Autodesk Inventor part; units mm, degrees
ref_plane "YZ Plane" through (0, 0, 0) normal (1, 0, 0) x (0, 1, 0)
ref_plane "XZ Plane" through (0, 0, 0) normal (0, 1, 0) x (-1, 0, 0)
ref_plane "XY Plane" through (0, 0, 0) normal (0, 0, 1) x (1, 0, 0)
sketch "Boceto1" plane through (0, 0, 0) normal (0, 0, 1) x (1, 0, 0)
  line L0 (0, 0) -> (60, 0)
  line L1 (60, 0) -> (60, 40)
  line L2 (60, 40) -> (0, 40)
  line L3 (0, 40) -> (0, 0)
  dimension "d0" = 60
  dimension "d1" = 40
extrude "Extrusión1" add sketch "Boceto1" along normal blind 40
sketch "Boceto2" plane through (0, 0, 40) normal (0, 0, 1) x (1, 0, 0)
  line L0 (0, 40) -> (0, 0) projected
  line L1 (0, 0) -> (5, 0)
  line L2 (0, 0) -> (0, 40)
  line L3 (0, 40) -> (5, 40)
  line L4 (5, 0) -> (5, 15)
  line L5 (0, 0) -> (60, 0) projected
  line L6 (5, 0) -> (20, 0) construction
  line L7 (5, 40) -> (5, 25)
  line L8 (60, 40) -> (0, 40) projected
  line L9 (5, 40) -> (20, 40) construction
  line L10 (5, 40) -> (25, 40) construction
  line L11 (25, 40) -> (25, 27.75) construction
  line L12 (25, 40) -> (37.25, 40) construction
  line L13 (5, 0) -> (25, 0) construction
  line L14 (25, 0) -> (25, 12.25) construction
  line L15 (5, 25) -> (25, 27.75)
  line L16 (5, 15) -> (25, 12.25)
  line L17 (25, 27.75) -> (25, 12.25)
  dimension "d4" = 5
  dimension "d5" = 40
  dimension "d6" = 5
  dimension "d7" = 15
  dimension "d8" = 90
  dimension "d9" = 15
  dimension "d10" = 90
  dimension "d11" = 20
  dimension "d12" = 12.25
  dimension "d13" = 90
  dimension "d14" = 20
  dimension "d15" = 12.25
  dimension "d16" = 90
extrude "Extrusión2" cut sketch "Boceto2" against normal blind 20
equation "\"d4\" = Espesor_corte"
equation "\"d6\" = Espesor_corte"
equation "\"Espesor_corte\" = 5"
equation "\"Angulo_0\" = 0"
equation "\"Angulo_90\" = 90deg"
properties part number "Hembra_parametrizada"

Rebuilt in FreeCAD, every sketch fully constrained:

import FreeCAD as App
import Part
import Sketcher
Q = App.Units.Quantity


def add_polygon(sketch, points):
    """Adds a closed chain of lines whose ends are joined by coincident constraints."""
    first, n = sketch.GeometryCount, len(points)
    for a, b in zip(points, points[1:] + points[:1]):
        sketch.addGeometry(Part.LineSegment(App.Vector(*a, 0), App.Vector(*b, 0)), False)
    for i in range(n):
        sketch.addConstraint(Sketcher.Constraint("Coincident", first + i, 2, first + (i + 1) % n, 1))

doc = App.newDocument("Part")
params = doc.addObject("Spreadsheet::Sheet", "Params")
for row, (alias, value) in enumerate([
    ("sketch1_width", "60 mm"),
    ("sketch1_height", "40 mm"),
    ("pad1_length", "40 mm"),
    ("sketch2_width", "5 mm"),
    ("sketch2_height", "40 mm"),
    ("sketch2_height2", "15 mm"),
    ("pocket1_length", "20 mm"),
], start=1):
    params.set(f"A{row}", alias)
    params.set(f"B{row}", "=" + value)
    params.setAlias(f"B{row}", alias)

body = doc.addObject("PartDesign::Body", "Body")

# Sketch on XY plane
sketch1 = body.newObject("Sketcher::SketchObject", "Sketch")
sketch1.AttachmentSupport = (doc.getObject("XY_Plane"), [""])
sketch1.MapMode = "FlatFace"
add_polygon(sketch1, [(0, 40), (0, 0), (60, 0), (60, 40)])  # lines 0-3
sketch1.addConstraint([
    Sketcher.Constraint("Vertical", 0),
    Sketcher.Constraint("Horizontal", 1),
    Sketcher.Constraint("Vertical", 2),
    Sketcher.Constraint("Horizontal", 3),
    Sketcher.Constraint("Coincident", 0, 2, -1, 1),
    Sketcher.Constraint("DistanceX", 1, 1, 1, 2, Q("60 mm")),
    Sketcher.Constraint("DistanceY", 0, 2, 0, 1, Q("40 mm")),
])
sketch1.setExpression("Constraints[9]", "Params.sketch1_width")
sketch1.setExpression("Constraints[10]", "Params.sketch1_height")
pad1 = body.newObject("PartDesign::Pad", "Pad")
pad1.Profile = sketch1
pad1.setExpression("Length", "Params.pad1_length")

# Sketch on XY plane
sketch2 = body.newObject("Sketcher::SketchObject", "Sketch001")
sketch2.AttachmentSupport = (doc.getObject("XY_Plane"), [""])
sketch2.MapMode = "FlatFace"
sketch2.AttachmentOffset = App.Placement(App.Vector(0, 0, 40), App.Rotation())
add_polygon(sketch2, [(5, 40), (0, 40), (0, 0), (5, 0), (5, 15), (25, 12), (25, 28), (5, 25)])  # lines 0-7
sketch2.addConstraint([
    Sketcher.Constraint("Horizontal", 0),
    Sketcher.Constraint("Vertical", 1),
    Sketcher.Constraint("Horizontal", 2),
    Sketcher.Constraint("Vertical", 3),
    Sketcher.Constraint("Vertical", 5),
    Sketcher.Constraint("Vertical", 7),
    Sketcher.Constraint("Coincident", 1, 2, -1, 1),
    Sketcher.Constraint("Vertical", 3, 2, 6, 2),
    Sketcher.Constraint("Equal", 3, 7),
    Sketcher.Constraint("Equal", 4, 6),
    Sketcher.Constraint("DistanceX", 0, 2, 0, 1, Q("5 mm")),
    Sketcher.Constraint("DistanceY", 1, 2, 1, 1, Q("40 mm")),
    Sketcher.Constraint("DistanceY", 3, 1, 3, 2, Q("15 mm")),
    Sketcher.Constraint("DistanceX", 3, 2, 4, 2, Q("20 mm")),
    Sketcher.Constraint("DistanceY", -1, 1, 4, 2, Q("12.25 mm")),
])
sketch2.setExpression("Constraints[18]", "Params.sketch2_width")
sketch2.setExpression("Constraints[19]", "Params.sketch2_height")
sketch2.setExpression("Constraints[20]", "Params.sketch2_height2")
pocket1 = body.newObject("PartDesign::Pocket", "Pocket")
pocket1.Profile = sketch2
pocket1.setExpression("Length", "Params.pocket1_length")

doc.recompute()
